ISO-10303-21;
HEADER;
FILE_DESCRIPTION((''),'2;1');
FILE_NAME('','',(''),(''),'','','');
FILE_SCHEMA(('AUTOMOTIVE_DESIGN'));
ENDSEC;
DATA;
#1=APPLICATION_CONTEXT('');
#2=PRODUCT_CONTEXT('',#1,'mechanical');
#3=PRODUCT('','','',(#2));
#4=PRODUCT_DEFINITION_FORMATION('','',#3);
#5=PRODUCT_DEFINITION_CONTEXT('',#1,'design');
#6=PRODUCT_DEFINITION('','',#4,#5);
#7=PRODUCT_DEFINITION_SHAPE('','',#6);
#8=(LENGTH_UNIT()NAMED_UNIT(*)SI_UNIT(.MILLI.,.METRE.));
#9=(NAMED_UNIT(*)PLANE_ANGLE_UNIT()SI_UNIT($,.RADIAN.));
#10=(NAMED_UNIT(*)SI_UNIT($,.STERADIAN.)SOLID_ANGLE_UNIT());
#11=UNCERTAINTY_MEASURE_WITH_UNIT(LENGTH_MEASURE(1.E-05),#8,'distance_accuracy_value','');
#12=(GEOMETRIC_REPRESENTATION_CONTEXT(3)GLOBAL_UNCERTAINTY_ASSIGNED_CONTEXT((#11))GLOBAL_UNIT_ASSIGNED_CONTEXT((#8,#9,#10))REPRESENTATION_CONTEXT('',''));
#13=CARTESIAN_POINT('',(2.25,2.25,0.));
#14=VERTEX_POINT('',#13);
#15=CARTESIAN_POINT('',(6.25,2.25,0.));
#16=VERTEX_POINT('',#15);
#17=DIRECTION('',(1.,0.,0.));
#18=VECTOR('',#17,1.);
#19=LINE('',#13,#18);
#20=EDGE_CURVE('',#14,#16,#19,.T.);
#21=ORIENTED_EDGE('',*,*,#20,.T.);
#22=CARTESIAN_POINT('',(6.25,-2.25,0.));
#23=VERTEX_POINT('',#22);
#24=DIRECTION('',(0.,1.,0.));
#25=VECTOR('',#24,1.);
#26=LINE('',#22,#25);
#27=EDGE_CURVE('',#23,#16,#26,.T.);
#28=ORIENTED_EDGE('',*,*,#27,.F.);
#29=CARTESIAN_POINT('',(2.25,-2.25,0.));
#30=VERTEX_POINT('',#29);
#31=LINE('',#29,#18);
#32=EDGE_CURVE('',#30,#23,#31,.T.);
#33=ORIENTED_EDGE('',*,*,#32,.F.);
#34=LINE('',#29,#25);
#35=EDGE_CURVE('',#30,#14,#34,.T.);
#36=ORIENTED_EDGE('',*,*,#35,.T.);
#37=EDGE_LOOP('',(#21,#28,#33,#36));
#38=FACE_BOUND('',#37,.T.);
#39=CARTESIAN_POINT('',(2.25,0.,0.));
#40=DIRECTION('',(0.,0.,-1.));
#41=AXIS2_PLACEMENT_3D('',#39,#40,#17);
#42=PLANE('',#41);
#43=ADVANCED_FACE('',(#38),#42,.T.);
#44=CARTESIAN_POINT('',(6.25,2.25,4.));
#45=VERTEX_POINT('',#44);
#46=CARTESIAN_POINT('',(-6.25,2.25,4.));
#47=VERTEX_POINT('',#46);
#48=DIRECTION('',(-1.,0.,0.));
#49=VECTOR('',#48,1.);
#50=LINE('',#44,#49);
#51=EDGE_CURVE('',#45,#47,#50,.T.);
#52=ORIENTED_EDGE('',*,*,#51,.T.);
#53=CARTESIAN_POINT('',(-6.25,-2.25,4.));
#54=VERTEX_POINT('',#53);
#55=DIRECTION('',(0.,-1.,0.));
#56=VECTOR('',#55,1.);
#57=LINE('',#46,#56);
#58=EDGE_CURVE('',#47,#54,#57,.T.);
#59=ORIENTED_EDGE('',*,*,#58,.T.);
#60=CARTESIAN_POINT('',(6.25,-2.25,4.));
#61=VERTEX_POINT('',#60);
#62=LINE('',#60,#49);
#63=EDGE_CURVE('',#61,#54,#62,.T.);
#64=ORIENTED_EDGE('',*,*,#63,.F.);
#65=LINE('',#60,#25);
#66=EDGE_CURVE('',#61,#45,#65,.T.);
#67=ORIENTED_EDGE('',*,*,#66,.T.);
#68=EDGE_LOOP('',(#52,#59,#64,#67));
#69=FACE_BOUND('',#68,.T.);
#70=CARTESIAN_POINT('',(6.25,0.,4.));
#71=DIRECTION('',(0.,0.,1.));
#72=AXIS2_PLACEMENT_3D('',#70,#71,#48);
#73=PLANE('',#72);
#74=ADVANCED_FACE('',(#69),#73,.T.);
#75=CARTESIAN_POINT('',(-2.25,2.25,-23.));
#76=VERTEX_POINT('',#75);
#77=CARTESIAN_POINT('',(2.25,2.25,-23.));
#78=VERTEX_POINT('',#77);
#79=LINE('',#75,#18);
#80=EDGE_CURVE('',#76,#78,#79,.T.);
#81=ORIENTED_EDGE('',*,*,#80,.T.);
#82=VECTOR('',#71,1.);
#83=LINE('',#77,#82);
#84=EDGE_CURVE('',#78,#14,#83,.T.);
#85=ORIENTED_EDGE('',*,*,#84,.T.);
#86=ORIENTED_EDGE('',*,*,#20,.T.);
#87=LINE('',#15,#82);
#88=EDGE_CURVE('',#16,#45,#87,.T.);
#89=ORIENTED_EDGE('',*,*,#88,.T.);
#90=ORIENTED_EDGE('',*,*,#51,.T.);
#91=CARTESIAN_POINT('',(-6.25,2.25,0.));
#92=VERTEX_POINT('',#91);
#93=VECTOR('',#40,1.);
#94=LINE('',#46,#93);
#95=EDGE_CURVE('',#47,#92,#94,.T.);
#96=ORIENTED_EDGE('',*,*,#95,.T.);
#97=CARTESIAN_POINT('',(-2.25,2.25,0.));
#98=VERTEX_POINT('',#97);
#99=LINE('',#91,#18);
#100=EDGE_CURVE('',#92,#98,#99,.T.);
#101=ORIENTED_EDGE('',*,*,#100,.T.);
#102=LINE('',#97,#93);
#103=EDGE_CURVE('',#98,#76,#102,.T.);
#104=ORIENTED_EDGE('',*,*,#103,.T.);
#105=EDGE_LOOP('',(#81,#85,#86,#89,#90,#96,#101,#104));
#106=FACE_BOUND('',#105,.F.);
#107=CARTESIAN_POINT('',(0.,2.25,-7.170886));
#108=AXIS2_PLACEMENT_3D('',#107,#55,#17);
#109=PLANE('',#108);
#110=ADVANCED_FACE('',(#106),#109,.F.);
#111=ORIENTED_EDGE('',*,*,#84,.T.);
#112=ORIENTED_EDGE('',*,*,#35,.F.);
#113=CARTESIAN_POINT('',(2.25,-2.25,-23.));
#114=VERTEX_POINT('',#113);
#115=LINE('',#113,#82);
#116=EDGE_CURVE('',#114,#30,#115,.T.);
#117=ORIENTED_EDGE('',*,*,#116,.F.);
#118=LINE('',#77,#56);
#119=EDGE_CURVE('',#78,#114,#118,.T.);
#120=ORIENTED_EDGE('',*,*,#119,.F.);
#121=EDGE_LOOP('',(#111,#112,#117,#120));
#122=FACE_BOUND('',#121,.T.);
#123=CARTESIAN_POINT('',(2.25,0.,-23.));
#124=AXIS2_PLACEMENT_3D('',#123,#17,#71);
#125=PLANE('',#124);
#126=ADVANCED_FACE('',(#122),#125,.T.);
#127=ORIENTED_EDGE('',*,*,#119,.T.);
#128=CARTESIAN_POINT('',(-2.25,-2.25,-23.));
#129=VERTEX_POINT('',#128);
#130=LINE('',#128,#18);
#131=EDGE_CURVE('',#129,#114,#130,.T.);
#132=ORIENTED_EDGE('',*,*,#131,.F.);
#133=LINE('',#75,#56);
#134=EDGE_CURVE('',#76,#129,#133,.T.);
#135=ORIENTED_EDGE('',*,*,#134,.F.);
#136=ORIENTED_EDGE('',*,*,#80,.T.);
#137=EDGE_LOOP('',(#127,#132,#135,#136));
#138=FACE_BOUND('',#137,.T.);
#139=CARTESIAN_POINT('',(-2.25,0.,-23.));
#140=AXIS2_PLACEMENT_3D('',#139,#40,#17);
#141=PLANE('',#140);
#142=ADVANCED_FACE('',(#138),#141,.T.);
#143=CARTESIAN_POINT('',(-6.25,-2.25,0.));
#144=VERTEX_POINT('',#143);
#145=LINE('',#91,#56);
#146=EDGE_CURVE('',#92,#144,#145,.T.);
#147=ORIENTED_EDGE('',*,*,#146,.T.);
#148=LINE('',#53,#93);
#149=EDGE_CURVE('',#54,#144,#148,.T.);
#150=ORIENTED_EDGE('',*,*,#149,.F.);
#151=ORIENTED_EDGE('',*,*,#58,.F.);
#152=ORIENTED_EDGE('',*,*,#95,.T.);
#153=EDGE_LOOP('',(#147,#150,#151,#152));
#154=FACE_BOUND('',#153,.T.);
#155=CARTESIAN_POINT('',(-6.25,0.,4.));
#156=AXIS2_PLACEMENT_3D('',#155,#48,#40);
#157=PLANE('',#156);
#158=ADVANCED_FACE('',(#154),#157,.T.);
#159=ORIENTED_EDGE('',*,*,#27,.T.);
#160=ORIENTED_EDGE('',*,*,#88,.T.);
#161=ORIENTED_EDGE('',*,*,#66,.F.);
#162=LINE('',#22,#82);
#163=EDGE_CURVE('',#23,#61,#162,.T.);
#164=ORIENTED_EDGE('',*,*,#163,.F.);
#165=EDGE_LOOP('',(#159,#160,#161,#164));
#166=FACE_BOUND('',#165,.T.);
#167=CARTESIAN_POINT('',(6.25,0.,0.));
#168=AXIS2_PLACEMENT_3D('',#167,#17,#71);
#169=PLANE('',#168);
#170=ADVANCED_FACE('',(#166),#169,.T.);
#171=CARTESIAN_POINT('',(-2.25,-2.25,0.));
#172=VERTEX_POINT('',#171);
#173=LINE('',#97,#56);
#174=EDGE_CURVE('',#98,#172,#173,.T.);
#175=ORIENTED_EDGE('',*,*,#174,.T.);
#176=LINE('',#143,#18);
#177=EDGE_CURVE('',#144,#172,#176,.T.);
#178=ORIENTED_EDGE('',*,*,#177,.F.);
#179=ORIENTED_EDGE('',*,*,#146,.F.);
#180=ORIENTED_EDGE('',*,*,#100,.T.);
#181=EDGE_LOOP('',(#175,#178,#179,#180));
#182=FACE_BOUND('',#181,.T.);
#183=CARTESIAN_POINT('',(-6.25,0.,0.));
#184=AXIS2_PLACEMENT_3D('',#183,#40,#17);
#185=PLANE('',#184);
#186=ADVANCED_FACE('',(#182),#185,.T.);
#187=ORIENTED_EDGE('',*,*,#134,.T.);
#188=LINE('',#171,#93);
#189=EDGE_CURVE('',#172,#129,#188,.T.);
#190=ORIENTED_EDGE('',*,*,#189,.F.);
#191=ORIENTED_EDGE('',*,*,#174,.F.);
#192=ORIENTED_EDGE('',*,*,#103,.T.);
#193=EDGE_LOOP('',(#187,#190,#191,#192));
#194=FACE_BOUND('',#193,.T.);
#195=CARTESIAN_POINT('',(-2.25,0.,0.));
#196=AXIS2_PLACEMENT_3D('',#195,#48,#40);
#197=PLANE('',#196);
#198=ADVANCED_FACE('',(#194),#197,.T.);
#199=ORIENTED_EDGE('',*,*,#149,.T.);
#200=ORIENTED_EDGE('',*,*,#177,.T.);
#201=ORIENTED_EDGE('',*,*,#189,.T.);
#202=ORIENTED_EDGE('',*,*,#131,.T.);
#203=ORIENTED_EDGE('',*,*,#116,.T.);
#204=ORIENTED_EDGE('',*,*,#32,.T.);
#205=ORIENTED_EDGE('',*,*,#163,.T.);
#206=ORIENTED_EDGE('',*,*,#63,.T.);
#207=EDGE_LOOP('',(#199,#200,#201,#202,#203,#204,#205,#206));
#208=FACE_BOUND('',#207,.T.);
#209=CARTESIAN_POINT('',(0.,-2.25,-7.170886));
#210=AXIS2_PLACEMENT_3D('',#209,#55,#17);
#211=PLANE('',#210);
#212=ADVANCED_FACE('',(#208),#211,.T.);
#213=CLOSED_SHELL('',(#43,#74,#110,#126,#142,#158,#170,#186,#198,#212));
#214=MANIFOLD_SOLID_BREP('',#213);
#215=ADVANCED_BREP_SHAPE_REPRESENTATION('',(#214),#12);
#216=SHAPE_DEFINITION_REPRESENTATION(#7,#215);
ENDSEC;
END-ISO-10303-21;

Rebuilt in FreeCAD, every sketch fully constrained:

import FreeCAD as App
import Part
import Sketcher
from FreeCAD import Vector


def add_polygon(sketch, points):
    """Adds a closed chain of lines whose ends are joined by coincident constraints."""
    first, n = sketch.GeometryCount, len(points)
    for a, b in zip(points, points[1:] + points[:1]):
        sketch.addGeometry(Part.LineSegment(App.Vector(*a, 0), App.Vector(*b, 0)), False)
    for i in range(n):
        sketch.addConstraint(Sketcher.Constraint("Coincident", first + i, 2, first + (i + 1) % n, 1))

doc = App.newDocument("Part")
body = doc.addObject("PartDesign::Body", "Body")

# Sketch on XZ plane
sketch1 = body.newObject("Sketcher::SketchObject", "Sketch")
sketch1.AttachmentSupport = (doc.getObject("XZ_Plane"), [""])
sketch1.MapMode = "FlatFace"
add_polygon(sketch1, [(6.2, 4), (-6.2, 4), (-6.2, 0), (-2.2, 0), (-2.2, -23), (2.2, -23), (2.2, 0), (6.2, 0)])  # lines 0-7
sketch1.addConstraint(Sketcher.Constraint("Horizontal", 0))
sketch1.addConstraint(Sketcher.Constraint("Vertical", 1))
sketch1.addConstraint(Sketcher.Constraint("Horizontal", 2))
sketch1.addConstraint(Sketcher.Constraint("Vertical", 3))
sketch1.addConstraint(Sketcher.Constraint("Horizontal", 4))
sketch1.addConstraint(Sketcher.Constraint("Vertical", 5))
sketch1.addConstraint(Sketcher.Constraint("Horizontal", 6))
sketch1.addConstraint(Sketcher.Constraint("Vertical", 7))
sketch1.addConstraint(Sketcher.Constraint("Symmetric", 2, 2, 5, 2, -1, 1))
sketch1.addConstraint(Sketcher.Constraint("Symmetric", 1, 2, 6, 2, -2))
sketch1.addConstraint(Sketcher.Constraint("Equal", 6, 1))
sketch1.addConstraint(Sketcher.Constraint("DistanceX", 2, 1, 2, 2, 4.0))
sketch1.addConstraint(Sketcher.Constraint("DistanceY", 3, 2, 3, 1, 23.0))
sketch1.addConstraint(Sketcher.Constraint("DistanceX", 0, 2, 0, 1, 12.5))
pad1 = body.newObject("PartDesign::Pad", "Pad")
pad1.Profile = sketch1
pad1.Type = "TwoLengths"
pad1.Length = 2.25
pad1.Length2 = 2.25

doc.recompute()
